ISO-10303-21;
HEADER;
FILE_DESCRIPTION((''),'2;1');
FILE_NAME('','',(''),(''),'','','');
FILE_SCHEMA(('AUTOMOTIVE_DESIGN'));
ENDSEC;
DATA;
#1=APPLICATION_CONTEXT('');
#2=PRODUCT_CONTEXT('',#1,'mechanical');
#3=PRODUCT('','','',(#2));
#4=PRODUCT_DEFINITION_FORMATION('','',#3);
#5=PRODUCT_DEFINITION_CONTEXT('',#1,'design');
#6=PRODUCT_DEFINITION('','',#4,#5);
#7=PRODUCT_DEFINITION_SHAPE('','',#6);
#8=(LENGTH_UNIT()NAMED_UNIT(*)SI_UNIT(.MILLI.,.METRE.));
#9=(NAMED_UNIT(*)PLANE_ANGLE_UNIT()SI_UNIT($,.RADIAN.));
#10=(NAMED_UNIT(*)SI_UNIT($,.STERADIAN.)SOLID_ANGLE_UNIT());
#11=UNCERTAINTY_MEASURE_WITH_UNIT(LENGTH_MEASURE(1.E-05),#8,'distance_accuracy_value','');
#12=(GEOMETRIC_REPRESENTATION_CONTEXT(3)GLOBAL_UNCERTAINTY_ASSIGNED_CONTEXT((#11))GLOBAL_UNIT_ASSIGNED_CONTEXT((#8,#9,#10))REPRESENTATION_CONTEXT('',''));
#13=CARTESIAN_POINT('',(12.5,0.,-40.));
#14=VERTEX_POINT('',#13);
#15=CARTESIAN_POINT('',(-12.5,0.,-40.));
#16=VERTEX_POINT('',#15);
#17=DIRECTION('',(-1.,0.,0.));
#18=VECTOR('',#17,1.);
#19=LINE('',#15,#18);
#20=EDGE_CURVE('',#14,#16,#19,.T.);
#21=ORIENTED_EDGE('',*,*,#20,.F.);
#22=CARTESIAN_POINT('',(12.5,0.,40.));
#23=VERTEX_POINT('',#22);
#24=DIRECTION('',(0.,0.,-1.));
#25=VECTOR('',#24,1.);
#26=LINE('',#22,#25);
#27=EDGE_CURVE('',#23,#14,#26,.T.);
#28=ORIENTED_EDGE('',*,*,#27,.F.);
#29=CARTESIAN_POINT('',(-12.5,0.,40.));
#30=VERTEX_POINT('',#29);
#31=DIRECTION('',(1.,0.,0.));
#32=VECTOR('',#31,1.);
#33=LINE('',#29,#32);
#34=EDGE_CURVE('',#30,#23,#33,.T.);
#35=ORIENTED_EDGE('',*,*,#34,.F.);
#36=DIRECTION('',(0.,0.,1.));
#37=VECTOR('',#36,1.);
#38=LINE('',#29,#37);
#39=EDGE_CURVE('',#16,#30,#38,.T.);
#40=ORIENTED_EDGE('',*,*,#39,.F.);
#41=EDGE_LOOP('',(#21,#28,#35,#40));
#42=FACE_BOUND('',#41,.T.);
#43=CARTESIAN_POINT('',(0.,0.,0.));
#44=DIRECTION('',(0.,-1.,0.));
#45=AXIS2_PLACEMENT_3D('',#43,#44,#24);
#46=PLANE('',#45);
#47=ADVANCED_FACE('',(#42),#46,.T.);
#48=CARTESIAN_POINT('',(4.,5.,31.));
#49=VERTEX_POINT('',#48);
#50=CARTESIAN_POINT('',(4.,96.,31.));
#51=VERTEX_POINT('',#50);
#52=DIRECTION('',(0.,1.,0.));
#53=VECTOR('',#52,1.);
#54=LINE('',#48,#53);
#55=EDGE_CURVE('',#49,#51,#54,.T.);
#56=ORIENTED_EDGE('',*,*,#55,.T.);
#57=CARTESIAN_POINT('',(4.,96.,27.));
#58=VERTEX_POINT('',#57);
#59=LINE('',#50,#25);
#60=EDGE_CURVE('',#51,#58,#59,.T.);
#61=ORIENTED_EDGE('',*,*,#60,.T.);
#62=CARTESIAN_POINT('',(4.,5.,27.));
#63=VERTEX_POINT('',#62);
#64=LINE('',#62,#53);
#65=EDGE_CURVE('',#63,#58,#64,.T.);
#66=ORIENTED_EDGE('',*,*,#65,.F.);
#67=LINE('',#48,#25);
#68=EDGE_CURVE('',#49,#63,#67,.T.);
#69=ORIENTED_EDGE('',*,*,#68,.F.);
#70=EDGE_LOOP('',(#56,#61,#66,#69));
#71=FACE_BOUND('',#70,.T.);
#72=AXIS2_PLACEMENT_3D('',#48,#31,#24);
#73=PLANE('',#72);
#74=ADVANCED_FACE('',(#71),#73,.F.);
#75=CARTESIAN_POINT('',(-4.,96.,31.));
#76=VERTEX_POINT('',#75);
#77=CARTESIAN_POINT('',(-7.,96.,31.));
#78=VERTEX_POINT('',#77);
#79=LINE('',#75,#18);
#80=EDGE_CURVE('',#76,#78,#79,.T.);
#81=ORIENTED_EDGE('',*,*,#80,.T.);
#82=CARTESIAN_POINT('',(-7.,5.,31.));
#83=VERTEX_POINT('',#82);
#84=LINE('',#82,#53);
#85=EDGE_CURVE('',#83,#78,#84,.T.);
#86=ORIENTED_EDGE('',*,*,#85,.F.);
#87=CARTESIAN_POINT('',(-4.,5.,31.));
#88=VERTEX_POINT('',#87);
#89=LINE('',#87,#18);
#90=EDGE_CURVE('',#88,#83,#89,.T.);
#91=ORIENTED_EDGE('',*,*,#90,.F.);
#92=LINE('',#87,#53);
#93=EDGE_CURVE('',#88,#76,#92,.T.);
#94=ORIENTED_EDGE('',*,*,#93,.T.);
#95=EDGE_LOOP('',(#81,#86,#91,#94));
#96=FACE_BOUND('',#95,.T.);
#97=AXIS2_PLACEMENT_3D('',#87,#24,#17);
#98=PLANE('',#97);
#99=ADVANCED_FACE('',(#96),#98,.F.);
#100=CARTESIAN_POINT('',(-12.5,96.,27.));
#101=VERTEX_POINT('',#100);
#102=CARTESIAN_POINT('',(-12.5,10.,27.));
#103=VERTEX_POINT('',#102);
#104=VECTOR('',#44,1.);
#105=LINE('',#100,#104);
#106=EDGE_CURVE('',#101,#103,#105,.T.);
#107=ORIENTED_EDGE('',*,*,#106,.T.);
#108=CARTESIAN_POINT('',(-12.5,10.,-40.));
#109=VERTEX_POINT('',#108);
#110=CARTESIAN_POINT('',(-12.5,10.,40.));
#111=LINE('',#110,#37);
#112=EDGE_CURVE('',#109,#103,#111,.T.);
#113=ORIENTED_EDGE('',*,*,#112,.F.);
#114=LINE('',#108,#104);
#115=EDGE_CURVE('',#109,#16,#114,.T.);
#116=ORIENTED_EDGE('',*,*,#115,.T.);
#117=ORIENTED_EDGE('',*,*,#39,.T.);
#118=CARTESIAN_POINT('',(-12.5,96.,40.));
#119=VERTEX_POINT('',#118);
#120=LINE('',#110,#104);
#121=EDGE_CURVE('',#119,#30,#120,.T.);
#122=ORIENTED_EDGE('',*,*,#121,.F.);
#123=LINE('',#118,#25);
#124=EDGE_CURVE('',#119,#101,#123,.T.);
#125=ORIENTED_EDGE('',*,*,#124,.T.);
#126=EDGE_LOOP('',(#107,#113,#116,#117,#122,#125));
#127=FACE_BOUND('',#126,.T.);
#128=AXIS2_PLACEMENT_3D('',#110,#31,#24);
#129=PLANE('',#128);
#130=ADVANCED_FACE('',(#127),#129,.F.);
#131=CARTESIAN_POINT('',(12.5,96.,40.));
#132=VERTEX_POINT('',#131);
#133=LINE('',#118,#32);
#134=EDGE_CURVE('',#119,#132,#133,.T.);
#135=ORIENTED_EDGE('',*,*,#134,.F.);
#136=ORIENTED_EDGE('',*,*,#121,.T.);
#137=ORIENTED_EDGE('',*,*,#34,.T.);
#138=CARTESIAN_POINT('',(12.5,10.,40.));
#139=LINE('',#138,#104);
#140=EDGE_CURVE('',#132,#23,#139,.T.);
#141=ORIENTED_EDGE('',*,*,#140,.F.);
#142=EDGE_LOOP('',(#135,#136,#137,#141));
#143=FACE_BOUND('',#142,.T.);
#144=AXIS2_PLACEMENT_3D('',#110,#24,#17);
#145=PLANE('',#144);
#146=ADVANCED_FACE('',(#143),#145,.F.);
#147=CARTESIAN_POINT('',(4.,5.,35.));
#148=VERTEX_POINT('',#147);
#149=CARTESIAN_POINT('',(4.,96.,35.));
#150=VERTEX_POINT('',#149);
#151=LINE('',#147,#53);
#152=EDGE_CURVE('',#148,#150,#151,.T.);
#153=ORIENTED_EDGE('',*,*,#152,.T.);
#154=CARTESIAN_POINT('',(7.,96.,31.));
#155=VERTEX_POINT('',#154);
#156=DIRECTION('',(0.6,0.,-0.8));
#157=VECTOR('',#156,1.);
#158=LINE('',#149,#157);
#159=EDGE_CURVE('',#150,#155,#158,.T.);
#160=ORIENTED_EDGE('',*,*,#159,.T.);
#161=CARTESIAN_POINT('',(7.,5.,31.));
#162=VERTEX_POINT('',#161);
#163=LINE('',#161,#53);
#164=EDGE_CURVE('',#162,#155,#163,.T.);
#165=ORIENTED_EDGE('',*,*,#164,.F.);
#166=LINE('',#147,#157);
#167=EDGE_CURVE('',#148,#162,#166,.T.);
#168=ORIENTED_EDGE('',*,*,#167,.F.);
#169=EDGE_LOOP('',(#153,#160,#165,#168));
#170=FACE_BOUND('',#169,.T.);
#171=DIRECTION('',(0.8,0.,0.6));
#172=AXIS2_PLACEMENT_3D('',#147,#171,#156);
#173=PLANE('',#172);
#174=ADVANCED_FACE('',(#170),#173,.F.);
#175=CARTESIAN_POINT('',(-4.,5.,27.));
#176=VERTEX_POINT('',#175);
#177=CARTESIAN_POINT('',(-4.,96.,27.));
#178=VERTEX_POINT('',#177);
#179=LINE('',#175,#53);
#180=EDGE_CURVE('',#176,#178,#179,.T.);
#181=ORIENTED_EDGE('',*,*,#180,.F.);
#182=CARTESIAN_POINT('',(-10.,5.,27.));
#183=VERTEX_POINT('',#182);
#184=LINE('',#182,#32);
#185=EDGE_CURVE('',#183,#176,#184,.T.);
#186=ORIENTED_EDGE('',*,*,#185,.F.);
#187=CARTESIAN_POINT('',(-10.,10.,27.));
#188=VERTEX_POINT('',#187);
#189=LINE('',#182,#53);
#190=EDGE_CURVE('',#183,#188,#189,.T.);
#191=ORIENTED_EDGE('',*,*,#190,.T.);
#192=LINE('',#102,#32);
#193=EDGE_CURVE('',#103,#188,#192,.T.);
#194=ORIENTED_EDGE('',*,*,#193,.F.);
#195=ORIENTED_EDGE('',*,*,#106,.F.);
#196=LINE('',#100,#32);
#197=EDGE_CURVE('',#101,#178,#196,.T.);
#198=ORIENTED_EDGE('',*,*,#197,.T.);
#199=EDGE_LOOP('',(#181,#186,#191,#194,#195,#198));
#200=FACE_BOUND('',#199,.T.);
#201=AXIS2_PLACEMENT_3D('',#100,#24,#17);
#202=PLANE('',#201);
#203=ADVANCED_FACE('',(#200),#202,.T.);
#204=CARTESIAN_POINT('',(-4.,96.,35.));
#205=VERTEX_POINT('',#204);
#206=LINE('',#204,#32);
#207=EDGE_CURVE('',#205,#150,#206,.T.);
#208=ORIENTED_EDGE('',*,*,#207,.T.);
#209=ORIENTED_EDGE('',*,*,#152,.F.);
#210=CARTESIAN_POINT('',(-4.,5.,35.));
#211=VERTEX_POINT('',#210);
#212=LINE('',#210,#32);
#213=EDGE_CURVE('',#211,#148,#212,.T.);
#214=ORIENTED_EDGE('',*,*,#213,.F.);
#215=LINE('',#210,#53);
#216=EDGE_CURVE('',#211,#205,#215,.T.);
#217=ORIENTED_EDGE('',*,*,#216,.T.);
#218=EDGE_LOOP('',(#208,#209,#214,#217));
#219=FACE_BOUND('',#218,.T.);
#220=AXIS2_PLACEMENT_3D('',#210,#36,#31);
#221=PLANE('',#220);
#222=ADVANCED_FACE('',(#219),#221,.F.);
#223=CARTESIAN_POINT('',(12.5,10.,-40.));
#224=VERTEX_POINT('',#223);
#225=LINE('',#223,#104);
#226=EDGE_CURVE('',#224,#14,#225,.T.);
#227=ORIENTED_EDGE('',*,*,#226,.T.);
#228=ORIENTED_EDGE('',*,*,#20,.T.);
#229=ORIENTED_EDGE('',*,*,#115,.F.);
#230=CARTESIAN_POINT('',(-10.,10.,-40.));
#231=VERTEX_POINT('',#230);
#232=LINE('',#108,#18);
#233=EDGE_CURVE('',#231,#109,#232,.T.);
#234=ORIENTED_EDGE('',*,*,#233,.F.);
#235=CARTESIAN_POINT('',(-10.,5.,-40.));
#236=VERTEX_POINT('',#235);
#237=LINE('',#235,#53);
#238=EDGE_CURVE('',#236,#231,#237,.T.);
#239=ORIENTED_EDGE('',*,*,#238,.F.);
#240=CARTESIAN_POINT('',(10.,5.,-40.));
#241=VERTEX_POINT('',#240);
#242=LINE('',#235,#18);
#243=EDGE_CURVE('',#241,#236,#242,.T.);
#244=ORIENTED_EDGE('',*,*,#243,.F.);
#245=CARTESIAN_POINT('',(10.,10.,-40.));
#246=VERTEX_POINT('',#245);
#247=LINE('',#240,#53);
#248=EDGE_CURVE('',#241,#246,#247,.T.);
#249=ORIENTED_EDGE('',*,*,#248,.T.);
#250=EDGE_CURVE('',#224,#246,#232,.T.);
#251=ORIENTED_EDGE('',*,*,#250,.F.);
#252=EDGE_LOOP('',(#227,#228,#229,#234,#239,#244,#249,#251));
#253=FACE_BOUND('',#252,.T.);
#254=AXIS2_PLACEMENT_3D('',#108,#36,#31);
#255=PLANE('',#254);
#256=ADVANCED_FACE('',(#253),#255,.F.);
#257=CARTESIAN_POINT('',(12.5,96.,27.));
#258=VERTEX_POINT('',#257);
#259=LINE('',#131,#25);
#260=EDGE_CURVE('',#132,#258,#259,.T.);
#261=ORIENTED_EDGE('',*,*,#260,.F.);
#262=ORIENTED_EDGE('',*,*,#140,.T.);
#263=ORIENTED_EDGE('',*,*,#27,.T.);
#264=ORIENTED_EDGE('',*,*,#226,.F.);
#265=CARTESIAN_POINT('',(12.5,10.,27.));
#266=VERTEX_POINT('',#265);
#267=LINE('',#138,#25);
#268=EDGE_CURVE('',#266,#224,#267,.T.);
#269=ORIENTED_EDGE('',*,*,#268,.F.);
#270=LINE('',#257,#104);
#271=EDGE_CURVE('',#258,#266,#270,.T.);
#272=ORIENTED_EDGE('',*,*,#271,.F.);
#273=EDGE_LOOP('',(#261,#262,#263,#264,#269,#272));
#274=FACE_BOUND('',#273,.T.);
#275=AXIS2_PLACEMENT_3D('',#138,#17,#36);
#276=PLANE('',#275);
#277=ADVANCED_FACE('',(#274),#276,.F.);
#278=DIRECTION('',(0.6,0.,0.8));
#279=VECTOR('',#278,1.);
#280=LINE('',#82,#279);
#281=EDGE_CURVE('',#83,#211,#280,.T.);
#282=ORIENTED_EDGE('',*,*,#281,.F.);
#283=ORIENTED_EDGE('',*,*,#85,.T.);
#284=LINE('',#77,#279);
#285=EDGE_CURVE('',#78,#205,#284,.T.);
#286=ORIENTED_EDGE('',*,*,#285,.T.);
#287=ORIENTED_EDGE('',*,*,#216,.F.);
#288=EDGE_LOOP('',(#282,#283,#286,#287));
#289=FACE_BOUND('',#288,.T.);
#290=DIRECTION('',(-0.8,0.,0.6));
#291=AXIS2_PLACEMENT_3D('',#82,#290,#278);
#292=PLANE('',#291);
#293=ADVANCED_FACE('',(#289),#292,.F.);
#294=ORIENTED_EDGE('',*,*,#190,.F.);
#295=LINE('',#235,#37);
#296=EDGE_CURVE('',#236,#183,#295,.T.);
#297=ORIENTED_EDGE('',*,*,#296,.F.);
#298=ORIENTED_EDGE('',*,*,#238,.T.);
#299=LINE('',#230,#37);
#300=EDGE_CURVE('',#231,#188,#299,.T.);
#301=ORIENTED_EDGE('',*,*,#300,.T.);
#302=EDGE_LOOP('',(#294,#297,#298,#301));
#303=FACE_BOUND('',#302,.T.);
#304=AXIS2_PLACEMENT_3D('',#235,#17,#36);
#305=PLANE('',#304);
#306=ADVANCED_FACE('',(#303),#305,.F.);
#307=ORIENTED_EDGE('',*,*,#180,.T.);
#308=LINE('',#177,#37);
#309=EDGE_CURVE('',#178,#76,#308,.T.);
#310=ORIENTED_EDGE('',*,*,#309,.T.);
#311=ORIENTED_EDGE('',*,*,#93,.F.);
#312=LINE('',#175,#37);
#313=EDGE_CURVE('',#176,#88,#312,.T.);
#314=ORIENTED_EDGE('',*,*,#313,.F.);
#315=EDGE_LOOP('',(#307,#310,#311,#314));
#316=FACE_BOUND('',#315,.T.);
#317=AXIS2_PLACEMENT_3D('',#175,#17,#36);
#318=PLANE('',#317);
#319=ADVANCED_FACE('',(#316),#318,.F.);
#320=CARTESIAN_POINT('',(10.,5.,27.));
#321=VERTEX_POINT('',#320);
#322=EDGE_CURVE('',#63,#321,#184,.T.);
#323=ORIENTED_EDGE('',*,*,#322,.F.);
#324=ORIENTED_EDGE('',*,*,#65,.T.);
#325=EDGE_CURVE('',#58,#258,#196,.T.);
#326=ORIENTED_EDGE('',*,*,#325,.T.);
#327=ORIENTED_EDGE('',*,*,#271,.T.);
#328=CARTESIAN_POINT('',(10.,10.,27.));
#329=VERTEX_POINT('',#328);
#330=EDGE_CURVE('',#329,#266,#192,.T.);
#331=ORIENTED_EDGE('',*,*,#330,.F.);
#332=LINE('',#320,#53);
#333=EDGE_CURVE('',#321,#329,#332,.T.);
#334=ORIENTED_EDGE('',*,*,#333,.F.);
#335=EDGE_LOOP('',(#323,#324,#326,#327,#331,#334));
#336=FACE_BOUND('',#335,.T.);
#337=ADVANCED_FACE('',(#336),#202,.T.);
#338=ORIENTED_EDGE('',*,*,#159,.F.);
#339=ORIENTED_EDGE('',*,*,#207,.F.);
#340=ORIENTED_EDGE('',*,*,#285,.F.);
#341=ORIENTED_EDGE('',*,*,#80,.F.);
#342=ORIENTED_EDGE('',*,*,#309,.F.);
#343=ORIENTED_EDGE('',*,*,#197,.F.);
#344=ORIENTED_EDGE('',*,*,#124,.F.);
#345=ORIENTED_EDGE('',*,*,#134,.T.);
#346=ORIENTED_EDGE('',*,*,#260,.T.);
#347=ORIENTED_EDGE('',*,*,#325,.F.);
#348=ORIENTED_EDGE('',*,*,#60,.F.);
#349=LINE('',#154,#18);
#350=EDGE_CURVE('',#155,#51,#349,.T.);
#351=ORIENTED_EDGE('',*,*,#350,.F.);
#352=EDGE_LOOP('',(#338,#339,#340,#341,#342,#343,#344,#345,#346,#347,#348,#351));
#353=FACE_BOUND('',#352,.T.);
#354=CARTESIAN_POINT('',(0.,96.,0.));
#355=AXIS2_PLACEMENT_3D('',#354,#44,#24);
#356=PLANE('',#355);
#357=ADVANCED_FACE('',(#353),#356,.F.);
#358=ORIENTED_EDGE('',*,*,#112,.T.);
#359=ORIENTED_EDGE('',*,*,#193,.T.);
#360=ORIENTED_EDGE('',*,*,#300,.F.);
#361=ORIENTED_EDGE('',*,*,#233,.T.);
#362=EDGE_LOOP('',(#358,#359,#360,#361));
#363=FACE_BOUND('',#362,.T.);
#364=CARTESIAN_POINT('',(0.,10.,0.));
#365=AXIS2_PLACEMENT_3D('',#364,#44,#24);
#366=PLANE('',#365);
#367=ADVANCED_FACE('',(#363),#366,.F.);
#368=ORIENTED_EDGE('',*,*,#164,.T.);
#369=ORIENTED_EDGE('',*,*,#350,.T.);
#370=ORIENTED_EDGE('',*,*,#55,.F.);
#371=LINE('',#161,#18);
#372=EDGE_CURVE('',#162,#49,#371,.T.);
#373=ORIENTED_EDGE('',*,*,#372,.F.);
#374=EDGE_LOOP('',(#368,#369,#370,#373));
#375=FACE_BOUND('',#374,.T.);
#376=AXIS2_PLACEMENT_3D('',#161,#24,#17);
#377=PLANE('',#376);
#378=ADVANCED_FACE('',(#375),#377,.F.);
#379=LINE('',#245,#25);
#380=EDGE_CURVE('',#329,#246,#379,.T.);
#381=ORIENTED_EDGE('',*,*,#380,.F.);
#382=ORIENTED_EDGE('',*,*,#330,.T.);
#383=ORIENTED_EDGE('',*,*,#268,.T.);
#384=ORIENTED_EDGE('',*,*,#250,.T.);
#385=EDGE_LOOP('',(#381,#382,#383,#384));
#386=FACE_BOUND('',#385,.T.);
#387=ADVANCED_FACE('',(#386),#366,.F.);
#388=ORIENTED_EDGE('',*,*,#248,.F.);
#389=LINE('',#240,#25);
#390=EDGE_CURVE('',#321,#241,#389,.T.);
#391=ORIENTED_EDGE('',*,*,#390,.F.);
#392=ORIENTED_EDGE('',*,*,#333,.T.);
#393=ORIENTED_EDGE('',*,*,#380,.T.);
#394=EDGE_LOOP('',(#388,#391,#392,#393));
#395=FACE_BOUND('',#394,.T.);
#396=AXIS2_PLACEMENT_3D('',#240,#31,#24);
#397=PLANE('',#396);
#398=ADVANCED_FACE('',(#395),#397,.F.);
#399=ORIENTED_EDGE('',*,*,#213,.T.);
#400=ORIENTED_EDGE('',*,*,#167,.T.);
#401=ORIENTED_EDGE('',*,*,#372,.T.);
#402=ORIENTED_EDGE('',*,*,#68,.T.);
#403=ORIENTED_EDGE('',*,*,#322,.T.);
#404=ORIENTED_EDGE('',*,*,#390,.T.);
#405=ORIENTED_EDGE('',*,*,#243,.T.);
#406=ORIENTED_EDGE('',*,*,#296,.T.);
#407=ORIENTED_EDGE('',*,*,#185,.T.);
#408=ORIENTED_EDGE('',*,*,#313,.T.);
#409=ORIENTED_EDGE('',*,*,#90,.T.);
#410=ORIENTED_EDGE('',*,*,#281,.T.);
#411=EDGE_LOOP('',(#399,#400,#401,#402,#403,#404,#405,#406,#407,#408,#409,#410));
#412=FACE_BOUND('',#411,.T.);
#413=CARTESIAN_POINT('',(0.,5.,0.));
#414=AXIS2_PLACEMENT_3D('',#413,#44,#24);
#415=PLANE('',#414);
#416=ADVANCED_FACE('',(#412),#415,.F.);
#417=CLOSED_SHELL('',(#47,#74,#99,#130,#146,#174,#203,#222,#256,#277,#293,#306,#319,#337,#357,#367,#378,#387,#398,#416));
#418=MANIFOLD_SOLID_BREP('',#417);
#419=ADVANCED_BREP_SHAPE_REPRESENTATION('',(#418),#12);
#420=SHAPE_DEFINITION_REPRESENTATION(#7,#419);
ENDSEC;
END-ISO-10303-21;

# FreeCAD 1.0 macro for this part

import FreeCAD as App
import Part
import Sketcher

V = App.Vector

doc = App.newDocument("Part")
body = doc.addObject("PartDesign::Body", "Body")

sketch1 = body.newObject("Sketcher::SketchObject", "Sketch")
sketch1.AttachmentSupport = (doc.getObject("XZ_Plane"), [""])
sketch1.MapMode = "FlatFace"
sketch1.addGeometry([
    Part.LineSegment(V(-12.5, -40, 0), V(-12.5, 40, 0)),
    Part.LineSegment(V(-12.5, 40, 0), V(12.5, 40, 0)),
    Part.LineSegment(V(12.5, 40, 0), V(12.5, -40, 0)),
    Part.LineSegment(V(12.5, -40, 0), V(-12.5, -40, 0)),
], False)
sketch1.addConstraint([
    Sketcher.Constraint("Coincident", 0, 2, 1, 1),
    Sketcher.Constraint("Coincident", 1, 2, 2, 1),
    Sketcher.Constraint("Coincident", 2, 2, 3, 1),
    Sketcher.Constraint("Coincident", 3, 2, 0, 1),
    Sketcher.Constraint("Vertical", 0),
    Sketcher.Constraint("Horizontal", 1),
    Sketcher.Constraint("Vertical", 2),
    Sketcher.Constraint("Horizontal", 3),
    Sketcher.Constraint("Symmetric", 0, 2, 2, 2, -1, 1),
    Sketcher.Constraint("DistanceX", 1, 1, 1, 2, 25.0),
    Sketcher.Constraint("DistanceY", 0, 1, 0, 2, 80.0),
])
pad1 = body.newObject("PartDesign::Pad", "Pad")
pad1.Profile = sketch1
pad1.Length = 10
pad1.Reversed = True

sketch2 = body.newObject("Sketcher::SketchObject", "Sketch001")
sketch2.AttachmentSupport = (doc.getObject("XZ_Plane"), [""])
sketch2.MapMode = "FlatFace"
sketch2.AttachmentOffset = App.Placement(V(0, 0, -10), App.Rotation())
sketch2.addGeometry([
    Part.LineSegment(V(-12.5, 27, 0), V(-12.5, 40, 0)),
    Part.LineSegment(V(-12.5, 40, 0), V(12.5, 40, 0)),
    Part.LineSegment(V(12.5, 40, 0), V(12.5, 27, 0)),
    Part.LineSegment(V(12.5, 27, 0), V(-12.5, 27, 0)),
], False)
sketch2.addConstraint([
    Sketcher.Constraint("Coincident", 0, 2, 1, 1),
    Sketcher.Constraint("Coincident", 1, 2, 2, 1),
    Sketcher.Constraint("Coincident", 2, 2, 3, 1),
    Sketcher.Constraint("Coincident", 3, 2, 0, 1),
    Sketcher.Constraint("Vertical", 0),
    Sketcher.Constraint("Horizontal", 1),
    Sketcher.Constraint("Vertical", 2),
    Sketcher.Constraint("Horizontal", 3),
    Sketcher.Constraint("DistanceX", 1, 1, 1, 2, 25.0),
    Sketcher.Constraint("DistanceY", 0, 1, 0, 2, 13.0),
    Sketcher.Constraint("DistanceY", -1, 1, 0, 2, 40.0),
    Sketcher.Constraint("DistanceX", 0, 2, -1, 1, 12.5),
])
pad2 = body.newObject("PartDesign::Pad", "Pad001")
pad2.Profile = sketch2
pad2.Length = 86
pad2.Reversed = True

sketch3 = body.newObject("Sketcher::SketchObject", "Sketch002")
sketch3.AttachmentSupport = (doc.getObject("XZ_Plane"), [""])
sketch3.MapMode = "FlatFace"
sketch3.AttachmentOffset = App.Placement(V(0, 0, -96), App.Rotation())
sketch3.addGeometry([
    Part.LineSegment(V(4, 27, 0), V(-4, 27, 0)),
    Part.LineSegment(V(-4, 27, 0), V(-4, 31, 0)),
    Part.LineSegment(V(-4, 31, 0), V(-7, 31, 0)),
    Part.LineSegment(V(-7, 31, 0), V(-4, 35, 0)),
    Part.LineSegment(V(-4, 35, 0), V(4, 35, 0)),
    Part.LineSegment(V(4, 35, 0), V(7, 31, 0)),
    Part.LineSegment(V(7, 31, 0), V(4, 31, 0)),
    Part.LineSegment(V(4, 31, 0), V(4, 27, 0)),
], False)
sketch3.addConstraint([
    Sketcher.Constraint("Coincident", 0, 2, 1, 1),
    Sketcher.Constraint("Coincident", 1, 2, 2, 1),
    Sketcher.Constraint("Coincident", 2, 2, 3, 1),
    Sketcher.Constraint("Coincident", 3, 2, 4, 1),
    Sketcher.Constraint("Coincident", 4, 2, 5, 1),
    Sketcher.Constraint("Coincident", 5, 2, 6, 1),
    Sketcher.Constraint("Coincident", 6, 2, 7, 1),
    Sketcher.Constraint("Coincident", 7, 2, 0, 1),
    Sketcher.Constraint("Horizontal", 0),
    Sketcher.Constraint("Vertical", 1),
    Sketcher.Constraint("Horizontal", 2),
    Sketcher.Constraint("Horizontal", 4),
    Sketcher.Constraint("Horizontal", 6),
    Sketcher.Constraint("Vertical", 7),
    Sketcher.Constraint("Symmetric", 2, 2, 5, 2, -2),
    Sketcher.Constraint("Vertical", 1, 2, 3, 2),
    Sketcher.Constraint("Vertical", 4, 2, 6, 2),
    Sketcher.Constraint("Equal", 2, 6),
    Sketcher.Constraint("DistanceX", 0, 2, 0, 1, 8.0),
    Sketcher.Constraint("DistanceX", 2, 2, 2, 1, 3.0),
    Sketcher.Constraint("DistanceY", 1, 1, 1, 2, 4.0),
    Sketcher.Constraint("Distance", 3, 5.0),
    Sketcher.Constraint("DistanceY", -1, 1, 0, 2, 27.0),
])
pocket1 = body.newObject("PartDesign::Pocket", "Pocket")
pocket1.Profile = sketch3
pocket1.Length = 91
pocket1.Reversed = True

sketch4 = body.newObject("Sketcher::SketchObject", "Sketch003")
sketch4.AttachmentSupport = (doc.getObject("XZ_Plane"), [""])
sketch4.MapMode = "FlatFace"
sketch4.AttachmentOffset = App.Placement(V(0, 0, -10), App.Rotation())
sketch4.addGeometry([
    Part.LineSegment(V(-10, -40, 0), V(-10, 27, 0)),
    Part.LineSegment(V(-10, 27, 0), V(10, 27, 0)),
    Part.LineSegment(V(10, 27, 0), V(10, -40, 0)),
    Part.LineSegment(V(10, -40, 0), V(-10, -40, 0)),
], False)
sketch4.addConstraint([
    Sketcher.Constraint("Coincident", 0, 2, 1, 1),
    Sketcher.Constraint("Coincident", 1, 2, 2, 1),
    Sketcher.Constraint("Coincident", 2, 2, 3, 1),
    Sketcher.Constraint("Coincident", 3, 2, 0, 1),
    Sketcher.Constraint("Vertical", 0),
    Sketcher.Constraint("Horizontal", 1),
    Sketcher.Constraint("Vertical", 2),
    Sketcher.Constraint("Horizontal", 3),
    Sketcher.Constraint("DistanceX", 1, 1, 1, 2, 20.0),
    Sketcher.Constraint("DistanceY", 0, 1, 0, 2, 67.0),
    Sketcher.Constraint("DistanceX", 0, 2, -1, 1, 10.0),
    Sketcher.Constraint("DistanceY", -1, 1, 0, 2, 27.0),
])
pocket2 = body.newObject("PartDesign::Pocket", "Pocket001")
pocket2.Profile = sketch4
pocket2.Length = 5
pocket2.Reversed = True

doc.recompute()
